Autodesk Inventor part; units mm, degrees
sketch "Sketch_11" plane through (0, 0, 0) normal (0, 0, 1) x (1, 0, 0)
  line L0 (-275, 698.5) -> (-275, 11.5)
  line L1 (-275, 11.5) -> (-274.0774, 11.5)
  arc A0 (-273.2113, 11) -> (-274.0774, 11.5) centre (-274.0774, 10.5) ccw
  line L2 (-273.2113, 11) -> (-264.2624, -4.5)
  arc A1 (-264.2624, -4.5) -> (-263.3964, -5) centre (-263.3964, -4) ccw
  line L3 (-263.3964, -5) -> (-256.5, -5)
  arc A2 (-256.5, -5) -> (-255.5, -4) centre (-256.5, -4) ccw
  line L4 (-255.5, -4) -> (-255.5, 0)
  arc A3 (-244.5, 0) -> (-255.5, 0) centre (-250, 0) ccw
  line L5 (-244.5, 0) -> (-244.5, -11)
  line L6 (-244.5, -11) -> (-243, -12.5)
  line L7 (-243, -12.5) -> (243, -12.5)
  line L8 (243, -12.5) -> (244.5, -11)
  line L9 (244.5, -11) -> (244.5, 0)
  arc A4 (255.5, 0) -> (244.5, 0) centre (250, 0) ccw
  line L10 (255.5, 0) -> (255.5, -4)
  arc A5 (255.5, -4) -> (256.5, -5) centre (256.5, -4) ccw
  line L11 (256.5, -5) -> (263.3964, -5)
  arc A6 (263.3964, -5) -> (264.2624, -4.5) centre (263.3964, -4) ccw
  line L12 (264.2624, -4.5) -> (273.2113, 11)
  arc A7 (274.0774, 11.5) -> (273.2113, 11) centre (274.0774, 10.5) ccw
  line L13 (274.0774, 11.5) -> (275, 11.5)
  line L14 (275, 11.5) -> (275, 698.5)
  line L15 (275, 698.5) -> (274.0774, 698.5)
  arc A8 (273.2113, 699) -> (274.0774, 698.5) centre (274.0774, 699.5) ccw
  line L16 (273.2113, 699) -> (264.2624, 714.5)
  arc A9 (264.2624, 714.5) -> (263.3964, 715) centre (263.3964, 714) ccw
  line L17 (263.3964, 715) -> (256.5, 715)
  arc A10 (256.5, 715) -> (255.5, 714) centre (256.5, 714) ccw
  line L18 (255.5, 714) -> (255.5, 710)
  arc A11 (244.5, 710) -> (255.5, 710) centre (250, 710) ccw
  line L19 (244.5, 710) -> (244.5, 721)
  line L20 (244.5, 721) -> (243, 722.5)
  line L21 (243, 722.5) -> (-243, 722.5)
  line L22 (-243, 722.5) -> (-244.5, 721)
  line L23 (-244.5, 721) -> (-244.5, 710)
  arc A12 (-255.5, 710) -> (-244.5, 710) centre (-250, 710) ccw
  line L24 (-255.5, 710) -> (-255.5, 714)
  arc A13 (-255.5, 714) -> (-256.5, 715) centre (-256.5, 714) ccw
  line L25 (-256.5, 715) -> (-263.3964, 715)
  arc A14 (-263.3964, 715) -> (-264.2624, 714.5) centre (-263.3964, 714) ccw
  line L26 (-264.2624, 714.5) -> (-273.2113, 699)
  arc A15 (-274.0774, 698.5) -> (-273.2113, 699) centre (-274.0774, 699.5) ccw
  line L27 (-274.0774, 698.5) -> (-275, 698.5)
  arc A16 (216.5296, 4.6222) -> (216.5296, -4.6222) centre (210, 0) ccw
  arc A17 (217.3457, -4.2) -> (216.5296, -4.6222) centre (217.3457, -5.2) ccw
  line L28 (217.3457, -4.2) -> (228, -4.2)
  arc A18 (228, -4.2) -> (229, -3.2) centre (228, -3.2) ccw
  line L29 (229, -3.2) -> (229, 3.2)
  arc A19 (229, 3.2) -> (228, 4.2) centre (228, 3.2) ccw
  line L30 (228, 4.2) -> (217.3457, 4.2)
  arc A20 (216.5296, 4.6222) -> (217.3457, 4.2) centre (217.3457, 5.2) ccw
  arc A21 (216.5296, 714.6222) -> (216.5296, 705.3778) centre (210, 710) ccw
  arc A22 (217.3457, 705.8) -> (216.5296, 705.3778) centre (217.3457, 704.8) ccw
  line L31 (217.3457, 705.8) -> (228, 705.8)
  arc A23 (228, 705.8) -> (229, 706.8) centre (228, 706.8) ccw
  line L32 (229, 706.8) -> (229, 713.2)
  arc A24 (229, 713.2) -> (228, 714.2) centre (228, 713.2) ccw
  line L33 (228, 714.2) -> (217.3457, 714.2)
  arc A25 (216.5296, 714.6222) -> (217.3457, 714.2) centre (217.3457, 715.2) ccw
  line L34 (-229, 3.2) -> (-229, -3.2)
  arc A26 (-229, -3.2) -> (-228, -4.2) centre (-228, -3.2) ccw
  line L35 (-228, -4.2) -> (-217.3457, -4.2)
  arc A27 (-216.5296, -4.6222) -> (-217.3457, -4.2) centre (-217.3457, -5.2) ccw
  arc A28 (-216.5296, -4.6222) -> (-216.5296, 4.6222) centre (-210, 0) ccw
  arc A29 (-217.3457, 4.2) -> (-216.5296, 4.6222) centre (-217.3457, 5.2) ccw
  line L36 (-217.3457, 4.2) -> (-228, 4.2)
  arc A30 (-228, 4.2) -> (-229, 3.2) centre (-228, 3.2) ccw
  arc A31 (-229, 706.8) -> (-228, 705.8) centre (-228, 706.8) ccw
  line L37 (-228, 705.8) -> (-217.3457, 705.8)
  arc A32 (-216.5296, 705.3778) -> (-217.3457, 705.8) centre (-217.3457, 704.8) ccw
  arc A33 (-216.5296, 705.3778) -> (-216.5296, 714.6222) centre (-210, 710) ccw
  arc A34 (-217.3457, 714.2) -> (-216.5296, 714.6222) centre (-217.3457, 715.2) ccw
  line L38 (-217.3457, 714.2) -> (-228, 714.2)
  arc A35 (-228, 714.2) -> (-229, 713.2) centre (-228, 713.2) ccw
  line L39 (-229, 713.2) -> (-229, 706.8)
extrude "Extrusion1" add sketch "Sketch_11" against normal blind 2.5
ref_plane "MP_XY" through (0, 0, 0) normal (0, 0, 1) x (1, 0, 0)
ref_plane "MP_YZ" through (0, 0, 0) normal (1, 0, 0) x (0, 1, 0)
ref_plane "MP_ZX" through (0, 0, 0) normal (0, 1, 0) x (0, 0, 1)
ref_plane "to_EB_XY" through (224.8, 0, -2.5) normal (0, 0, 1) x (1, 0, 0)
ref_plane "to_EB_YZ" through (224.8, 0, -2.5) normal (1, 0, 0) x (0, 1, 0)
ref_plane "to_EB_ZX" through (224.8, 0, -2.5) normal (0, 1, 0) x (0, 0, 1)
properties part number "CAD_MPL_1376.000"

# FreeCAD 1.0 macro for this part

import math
import FreeCAD as App
import Part
import Sketcher
Q = App.Units.Quantity

doc = App.newDocument("Part")
params = doc.addObject("Spreadsheet::Sheet", "Params")
for row, (alias, value) in enumerate([
    ("sketch1_radius", "1 mm"),
    ("sketch1_radius2", "8 mm"),
    ("sketch1_radius3", "5.5 mm"),
    ("sketch1_width", "486 mm"),
    ("sketch1_height", "687 mm"),
    ("pad1_length", "2.5 mm"),
], start=1):
    params.set(f"A{row}", alias)
    params.set(f"B{row}", "=" + value)
    params.setAlias(f"B{row}", alias)

body = doc.addObject("PartDesign::Body", "Body")

sketch1 = doc.addObject("Sketcher::SketchObject", "Sketch")
body.addObject(sketch1)
sketch1.AttachmentSupport = (doc.XY_Plane, [""])
sketch1.MapMode = "FlatFace"
sketch1.addGeometry([
    Part.LineSegment(App.Vector(-274.1, 698.5, 0), App.Vector(-275, 698.5, 0)),
    Part.LineSegment(App.Vector(-275, 698.5, 0), App.Vector(-275, 11.5, 0)),
    Part.LineSegment(App.Vector(-275, 11.5, 0), App.Vector(-274.1, 11.5, 0)),
    Part.ArcOfCircle(Part.Circle(App.Vector(-274.1, 10.5, 0), App.Vector(0, 0, 1), 1), math.radians(30), math.radians(90)),
    Part.LineSegment(App.Vector(-273.2, 11, 0), App.Vector(-264.3, -4.5, 0)),
    Part.ArcOfCircle(Part.Circle(App.Vector(-263.4, -4, 0), App.Vector(0, 0, 1), 1), math.radians(-150), math.radians(-90)),
    Part.LineSegment(App.Vector(-263.4, -5, 0), App.Vector(-256.5, -5, 0)),
    Part.ArcOfCircle(Part.Circle(App.Vector(-256.5, -4, 0), App.Vector(0, 0, 1), 1), math.radians(-90), math.radians(0)),
    Part.LineSegment(App.Vector(-255.5, -4, 0), App.Vector(-255.5, 0, 0)),
    Part.ArcOfCircle(Part.Circle(App.Vector(-250, 0, 0), App.Vector(0, 0, 1), 5.5), math.radians(0), math.radians(180)),
    Part.LineSegment(App.Vector(-244.5, 0, 0), App.Vector(-244.5, -11, 0)),
    Part.LineSegment(App.Vector(-244.5, -11, 0), App.Vector(-243, -12.5, 0)),
    Part.LineSegment(App.Vector(-243, -12.5, 0), App.Vector(243, -12.5, 0)),
    Part.LineSegment(App.Vector(243, -12.5, 0), App.Vector(244.5, -11, 0)),
    Part.LineSegment(App.Vector(244.5, -11, 0), App.Vector(244.5, 0, 0)),
    Part.ArcOfCircle(Part.Circle(App.Vector(250, 0, 0), App.Vector(0, 0, 1), 5.5), math.radians(0), math.radians(180)),
    Part.LineSegment(App.Vector(255.5, 0, 0), App.Vector(255.5, -4, 0)),
    Part.ArcOfCircle(Part.Circle(App.Vector(256.5, -4, 0), App.Vector(0, 0, 1), 1), math.radians(180), math.radians(270)),
    Part.LineSegment(App.Vector(256.5, -5, 0), App.Vector(263.4, -5, 0)),
    Part.ArcOfCircle(Part.Circle(App.Vector(263.4, -4, 0), App.Vector(0, 0, 1), 1), math.radians(-90), math.radians(-30)),
    Part.LineSegment(App.Vector(264.3, -4.5, 0), App.Vector(273.2, 11, 0)),
    Part.ArcOfCircle(Part.Circle(App.Vector(274.1, 10.5, 0), App.Vector(0, 0, 1), 1), math.radians(90), math.radians(150)),
    Part.LineSegment(App.Vector(274.1, 11.5, 0), App.Vector(275, 11.5, 0)),
    Part.LineSegment(App.Vector(275, 11.5, 0), App.Vector(275, 698.5, 0)),
    Part.LineSegment(App.Vector(275, 698.5, 0), App.Vector(274.1, 698.5, 0)),
    Part.ArcOfCircle(Part.Circle(App.Vector(274.1, 699.5, 0), App.Vector(0, 0, 1), 1), math.radians(-150), math.radians(-90)),
    Part.LineSegment(App.Vector(273.2, 699, 0), App.Vector(264.3, 714.5, 0)),
    Part.ArcOfCircle(Part.Circle(App.Vector(263.4, 714, 0), App.Vector(0, 0, 1), 1), math.radians(30), math.radians(90)),
    Part.LineSegment(App.Vector(263.4, 715, 0), App.Vector(256.5, 715, 0)),
    Part.ArcOfCircle(Part.Circle(App.Vector(256.5, 714, 0), App.Vector(0, 0, 1), 1), math.radians(90), math.radians(180)),
    Part.LineSegment(App.Vector(255.5, 714, 0), App.Vector(255.5, 710, 0)),
    Part.ArcOfCircle(Part.Circle(App.Vector(250, 710, 0), App.Vector(0, 0, 1), 5.5), math.radians(180), math.radians(360)),
    Part.LineSegment(App.Vector(244.5, 710, 0), App.Vector(244.5, 721, 0)),
    Part.LineSegment(App.Vector(244.5, 721, 0), App.Vector(243, 722.5, 0)),
    Part.LineSegment(App.Vector(243, 722.5, 0), App.Vector(-243, 722.5, 0)),
    Part.LineSegment(App.Vector(-243, 722.5, 0), App.Vector(-244.5, 721, 0)),
    Part.LineSegment(App.Vector(-244.5, 721, 0), App.Vector(-244.5, 710, 0)),
    Part.ArcOfCircle(Part.Circle(App.Vector(-250, 710, 0), App.Vector(0, 0, 1), 5.5), math.radians(180), math.radians(360)),
    Part.LineSegment(App.Vector(-255.5, 710, 0), App.Vector(-255.5, 714, 0)),
    Part.ArcOfCircle(Part.Circle(App.Vector(-256.5, 714, 0), App.Vector(0, 0, 1), 1), math.radians(0), math.radians(90)),
    Part.LineSegment(App.Vector(-256.5, 715, 0), App.Vector(-263.4, 715, 0)),
    Part.ArcOfCircle(Part.Circle(App.Vector(-263.4, 714, 0), App.Vector(0, 0, 1), 1), math.radians(90), math.radians(150)),
    Part.LineSegment(App.Vector(-264.3, 714.5, 0), App.Vector(-273.2, 699, 0)),
    Part.ArcOfCircle(Part.Circle(App.Vector(-274.1, 699.5, 0), App.Vector(0, 0, 1), 1), math.radians(-90), math.radians(-30)),
    Part.LineSegment(App.Vector(-229, -3.2, 0), App.Vector(-229, 3.2, 0)),
    Part.ArcOfCircle(Part.Circle(App.Vector(-228, 3.2, 0), App.Vector(0, 0, 1), 1), math.radians(90), math.radians(180)),
    Part.LineSegment(App.Vector(-228, 4.2, 0), App.Vector(-217.3, 4.2, 0)),
    Part.ArcOfCircle(Part.Circle(App.Vector(-217.3, 5.2, 0), App.Vector(0, 0, 1), 1), math.radians(-90), math.radians(-35)),
    Part.ArcOfCircle(Part.Circle(App.Vector(-210, 0, 0), App.Vector(0, 0, 1), 8), math.radians(-145), math.radians(145)),
    Part.ArcOfCircle(Part.Circle(App.Vector(-217.3, -5.2, 0), App.Vector(0, 0, 1), 1), math.radians(35), math.radians(90)),
    Part.LineSegment(App.Vector(-217.3, -4.2, 0), App.Vector(-228, -4.2, 0)),
    Part.ArcOfCircle(Part.Circle(App.Vector(-228, -3.2, 0), App.Vector(0, 0, 1), 1), math.radians(180), math.radians(270)),
    Part.ArcOfCircle(Part.Circle(App.Vector(210, 0, 0), App.Vector(0, 0, 1), 8), math.radians(35), math.radians(325)),
    Part.ArcOfCircle(Part.Circle(App.Vector(217.3, 5.2, 0), App.Vector(0, 0, 1), 1), math.radians(-145), math.radians(-90)),
    Part.LineSegment(App.Vector(217.3, 4.2, 0), App.Vector(228, 4.2, 0)),
    Part.ArcOfCircle(Part.Circle(App.Vector(228, 3.2, 0), App.Vector(0, 0, 1), 1), math.radians(0), math.radians(90)),
    Part.LineSegment(App.Vector(229, 3.2, 0), App.Vector(229, -3.2, 0)),
    Part.ArcOfCircle(Part.Circle(App.Vector(228, -3.2, 0), App.Vector(0, 0, 1), 1), math.radians(-90), math.radians(0)),
    Part.LineSegment(App.Vector(228, -4.2, 0), App.Vector(217.3, -4.2, 0)),
    Part.ArcOfCircle(Part.Circle(App.Vector(217.3, -5.2, 0), App.Vector(0, 0, 1), 1), math.radians(90), math.radians(145)),
    Part.ArcOfCircle(Part.Circle(App.Vector(-228, 706.8, 0), App.Vector(0, 0, 1), 1), math.radians(180), math.radians(270)),
    Part.LineSegment(App.Vector(-229, 706.8, 0), App.Vector(-229, 713.2, 0)),
    Part.ArcOfCircle(Part.Circle(App.Vector(-228, 713.2, 0), App.Vector(0, 0, 1), 1), math.radians(90), math.radians(180)),
    Part.LineSegment(App.Vector(-228, 714.2, 0), App.Vector(-217.3, 714.2, 0)),
    Part.ArcOfCircle(Part.Circle(App.Vector(-217.3, 715.2, 0), App.Vector(0, 0, 1), 1), math.radians(-90), math.radians(-35)),
    Part.ArcOfCircle(Part.Circle(App.Vector(-210, 710, 0), App.Vector(0, 0, 1), 8), math.radians(-145), math.radians(145)),
    Part.ArcOfCircle(Part.Circle(App.Vector(-217.3, 704.8, 0), App.Vector(0, 0, 1), 1), math.radians(35), math.radians(90)),
    Part.LineSegment(App.Vector(-217.3, 705.8, 0), App.Vector(-228, 705.8, 0)),
    Part.ArcOfCircle(Part.Circle(App.Vector(210, 710, 0), App.Vector(0, 0, 1), 8), math.radians(35), math.radians(325)),
    Part.ArcOfCircle(Part.Circle(App.Vector(217.3, 715.2, 0), App.Vector(0, 0, 1), 1), math.radians(-145), math.radians(-90)),
    Part.LineSegment(App.Vector(217.3, 714.2, 0), App.Vector(228, 714.2, 0)),
    Part.ArcOfCircle(Part.Circle(App.Vector(228, 713.2, 0), App.Vector(0, 0, 1), 1), math.radians(0), math.radians(90)),
    Part.LineSegment(App.Vector(229, 713.2, 0), App.Vector(229, 706.8, 0)),
    Part.ArcOfCircle(Part.Circle(App.Vector(228, 706.8, 0), App.Vector(0, 0, 1), 1), math.radians(-90), math.radians(0)),
    Part.LineSegment(App.Vector(228, 705.8, 0), App.Vector(217.3, 705.8, 0)),
    Part.ArcOfCircle(Part.Circle(App.Vector(217.3, 704.8, 0), App.Vector(0, 0, 1), 1), math.radians(90), math.radians(145)),
], False)
sketch1.addConstraint([
    Sketcher.Constraint("Coincident", 0, 2, 1, 1),
    Sketcher.Constraint("Coincident", 1, 2, 2, 1),
    Sketcher.Constraint("Tangent", 2, 2, 3, 2),
    Sketcher.Constraint("Tangent", 3, 1, 4, 1),
    Sketcher.Constraint("Tangent", 4, 2, 5, 1),
    Sketcher.Constraint("Tangent", 5, 2, 6, 1),
    Sketcher.Constraint("Tangent", 6, 2, 7, 1),
    Sketcher.Constraint("Tangent", 7, 2, 8, 1),
    Sketcher.Constraint("Tangent", 8, 2, 9, 2),
    Sketcher.Constraint("Tangent", 9, 1, 10, 1),
    Sketcher.Constraint("Coincident", 10, 2, 11, 1),
    Sketcher.Constraint("Coincident", 11, 2, 12, 1),
    Sketcher.Constraint("Coincident", 12, 2, 13, 1),
    Sketcher.Constraint("Coincident", 13, 2, 14, 1),
    Sketcher.Constraint("Tangent", 14, 2, 15, 2),
    Sketcher.Constraint("Tangent", 15, 1, 16, 1),
    Sketcher.Constraint("Tangent", 16, 2, 17, 1),
    Sketcher.Constraint("Tangent", 17, 2, 18, 1),
    Sketcher.Constraint("Tangent", 18, 2, 19, 1),
    Sketcher.Constraint("Tangent", 19, 2, 20, 1),
    Sketcher.Constraint("Tangent", 20, 2, 21, 2),
    Sketcher.Constraint("Tangent", 21, 1, 22, 1),
    Sketcher.Constraint("Coincident", 22, 2, 23, 1),
    Sketcher.Constraint("Coincident", 23, 2, 24, 1),
    Sketcher.Constraint("Tangent", 24, 2, 25, 2),
    Sketcher.Constraint("Tangent", 25, 1, 26, 1),
    Sketcher.Constraint("Tangent", 26, 2, 27, 1),
    Sketcher.Constraint("Tangent", 27, 2, 28, 1),
    Sketcher.Constraint("Tangent", 28, 2, 29, 1),
    Sketcher.Constraint("Tangent", 29, 2, 30, 1),
    Sketcher.Constraint("Tangent", 30, 2, 31, 2),
    Sketcher.Constraint("Tangent", 31, 1, 32, 1),
    Sketcher.Constraint("Coincident", 32, 2, 33, 1),
    Sketcher.Constraint("Coincident", 33, 2, 34, 1),
    Sketcher.Constraint("Coincident", 34, 2, 35, 1),
    Sketcher.Constraint("Coincident", 35, 2, 36, 1),
    Sketcher.Constraint("Tangent", 36, 2, 37, 2),
    Sketcher.Constraint("Tangent", 37, 1, 38, 1),
    Sketcher.Constraint("Tangent", 38, 2, 39, 1),
    Sketcher.Constraint("Tangent", 39, 2, 40, 1),
    Sketcher.Constraint("Tangent", 40, 2, 41, 1),
    Sketcher.Constraint("Tangent", 41, 2, 42, 1),
    Sketcher.Constraint("Tangent", 42, 2, 43, 2),
    Sketcher.Constraint("Tangent", 43, 1, 0, 1),
    Sketcher.Constraint("Tangent", 44, 2, 45, 2),
    Sketcher.Constraint("Tangent", 45, 1, 46, 1),
    Sketcher.Constraint("Tangent", 46, 2, 47, 1),
    Sketcher.Constraint("Tangent", 47, 2, 48, 2),
    Sketcher.Constraint("Tangent", 48, 1, 49, 1),
    Sketcher.Constraint("Tangent", 49, 2, 50, 1),
    Sketcher.Constraint("Tangent", 50, 2, 51, 2),
    Sketcher.Constraint("Tangent", 51, 1, 44, 1),
    Sketcher.Constraint("Tangent", 52, 1, 53, 1),
    Sketcher.Constraint("Tangent", 53, 2, 54, 1),
    Sketcher.Constraint("Tangent", 54, 2, 55, 2),
    Sketcher.Constraint("Tangent", 55, 1, 56, 1),
    Sketcher.Constraint("Tangent", 56, 2, 57, 2),
    Sketcher.Constraint("Tangent", 57, 1, 58, 1),
    Sketcher.Constraint("Tangent", 58, 2, 59, 1),
    Sketcher.Constraint("Tangent", 59, 2, 52, 2),
    Sketcher.Constraint("Tangent", 60, 1, 61, 1),
    Sketcher.Constraint("Tangent", 61, 2, 62, 2),
    Sketcher.Constraint("Tangent", 62, 1, 63, 1),
    Sketcher.Constraint("Tangent", 63, 2, 64, 1),
    Sketcher.Constraint("Tangent", 64, 2, 65, 2),
    Sketcher.Constraint("Tangent", 65, 1, 66, 1),
    Sketcher.Constraint("Tangent", 66, 2, 67, 1),
    Sketcher.Constraint("Tangent", 67, 2, 60, 2),
    Sketcher.Constraint("Tangent", 68, 1, 69, 1),
    Sketcher.Constraint("Tangent", 69, 2, 70, 1),
    Sketcher.Constraint("Tangent", 70, 2, 71, 2),
    Sketcher.Constraint("Tangent", 71, 1, 72, 1),
    Sketcher.Constraint("Tangent", 72, 2, 73, 2),
    Sketcher.Constraint("Tangent", 73, 1, 74, 1),
    Sketcher.Constraint("Tangent", 74, 2, 75, 1),
    Sketcher.Constraint("Tangent", 75, 2, 68, 2),
    Sketcher.Constraint("Horizontal", 0),
    Sketcher.Constraint("Vertical", 1),
    Sketcher.Constraint("Horizontal", 2),
    Sketcher.Constraint("Horizontal", 6),
    Sketcher.Constraint("Vertical", 8),
    Sketcher.Constraint("Vertical", 10),
    Sketcher.Constraint("Horizontal", 12),
    Sketcher.Constraint("Vertical", 14),
    Sketcher.Constraint("Vertical", 16),
    Sketcher.Constraint("Horizontal", 18),
    Sketcher.Constraint("Horizontal", 22),
    Sketcher.Constraint("Vertical", 23),
    Sketcher.Constraint("Horizontal", 24),
    Sketcher.Constraint("Horizontal", 28),
    Sketcher.Constraint("Vertical", 30),
    Sketcher.Constraint("Vertical", 32),
    Sketcher.Constraint("Horizontal", 34),
    Sketcher.Constraint("Vertical", 36),
    Sketcher.Constraint("Vertical", 38),
    Sketcher.Constraint("Horizontal", 40),
    Sketcher.Constraint("Vertical", 44),
    Sketcher.Constraint("Horizontal", 46),
    Sketcher.Constraint("Horizontal", 50),
    Sketcher.Constraint("Horizontal", 54),
    Sketcher.Constraint("Vertical", 56),
    Sketcher.Constraint("Horizontal", 58),
    Sketcher.Constraint("Vertical", 61),
    Sketcher.Constraint("Horizontal", 63),
    Sketcher.Constraint("Horizontal", 67),
    Sketcher.Constraint("Horizontal", 70),
    Sketcher.Constraint("Vertical", 72),
    Sketcher.Constraint("Horizontal", 74),
    Sketcher.Constraint("Equal", 3, 5),
    Sketcher.Constraint("Equal", 5, 7),
    Sketcher.Constraint("Equal", 9, 15),
    Sketcher.Constraint("Equal", 7, 17),
    Sketcher.Constraint("Equal", 17, 19),
    Sketcher.Constraint("Equal", 19, 21),
    Sketcher.Constraint("Equal", 21, 25),
    Sketcher.Constraint("Equal", 25, 27),
    Sketcher.Constraint("Equal", 27, 29),
    Sketcher.Constraint("Equal", 15, 31),
    Sketcher.Constraint("Equal", 31, 37),
    Sketcher.Constraint("Equal", 29, 39),
    Sketcher.Constraint("Equal", 39, 41),
    Sketcher.Constraint("Equal", 41, 43),
    Sketcher.Constraint("Equal", 43, 45),
    Sketcher.Constraint("Equal", 45, 47),
    Sketcher.Constraint("Equal", 47, 49),
    Sketcher.Constraint("Equal", 49, 51),
    Sketcher.Constraint("Equal", 48, 52),
    Sketcher.Constraint("Equal", 51, 53),
    Sketcher.Constraint("Equal", 53, 55),
    Sketcher.Constraint("Equal", 55, 57),
    Sketcher.Constraint("Equal", 57, 59),
    Sketcher.Constraint("Equal", 59, 60),
    Sketcher.Constraint("Equal", 60, 62),
    Sketcher.Constraint("Equal", 62, 64),
    Sketcher.Constraint("Equal", 52, 65),
    Sketcher.Constraint("Equal", 64, 66),
    Sketcher.Constraint("Equal", 65, 68),
    Sketcher.Constraint("Equal", 66, 69),
    Sketcher.Constraint("Equal", 69, 71),
    Sketcher.Constraint("Equal", 71, 73),
    Sketcher.Constraint("Equal", 73, 75),
    Sketcher.Constraint("Symmetric", 9, 3, 15, 3, -1, 1),
    Sketcher.Constraint("Symmetric", 48, 3, 52, 3, -1, 1),
    Sketcher.Constraint("Symmetric", 51, 3, 55, 3, -1, 1),
    Sketcher.Constraint("Symmetric", 5, 3, 19, 3, -2),
    Sketcher.Constraint("Symmetric", 3, 3, 21, 3, -2),
    Sketcher.Constraint("Symmetric", 31, 3, 37, 3, -2),
    Sketcher.Constraint("Symmetric", 27, 3, 41, 3, -2),
    Sketcher.Constraint("Symmetric", 25, 3, 43, 3, -2),
    Sketcher.Constraint("Symmetric", 47, 3, 53, 3, -2),
    Sketcher.Constraint("Symmetric", 65, 3, 68, 3, -2),
    Sketcher.Constraint("Symmetric", 62, 3, 71, 3, -2),
    Sketcher.Constraint("PointOnObject", 9, 3, -1),
    Sketcher.Constraint("Perpendicular", 11, 13),
    Sketcher.Constraint("Parallel", 4, 26),
    Sketcher.Constraint("Perpendicular", 13, 33),
    Sketcher.Constraint("Perpendicular", 33, 35),
    Sketcher.Constraint("Horizontal", 51, 3, 57, 3),
    Sketcher.Constraint("Horizontal", 37, 3, 65, 3),
    Sketcher.Constraint("Horizontal", 60, 3, 73, 3),
    Sketcher.Constraint("Horizontal", 10, 2, 13, 2),
    Sketcher.Constraint("Horizontal", 32, 2, 35, 2),
    Sketcher.Constraint("Vertical", 21, 3, 25, 3),
    Sketcher.Constraint("Vertical", 19, 3, 27, 3),
    Sketcher.Constraint("Vertical", 17, 3, 29, 3),
    Sketcher.Constraint("Vertical", 51, 3, 60, 3),
    Sketcher.Constraint("Vertical", 49, 3, 64, 3),
    Sketcher.Constraint("Vertical", 48, 3, 65, 3),
    Sketcher.Constraint("Vertical", 64, 3, 66, 3),
    Sketcher.Constraint("Vertical", 12, 2, 33, 2),
    Sketcher.Constraint("Vertical", 11, 2, 34, 2),
    Sketcher.Constraint("Equal", 2, 22),
    Sketcher.Constraint("Equal", 16, 30),
    Sketcher.Constraint("Equal", 14, 32),
    Sketcher.Constraint("Radius", 3, Q("1 mm")),
    Sketcher.Constraint("Radius", 48, Q("8 mm")),
    Sketcher.Constraint("Radius", 9, Q("5.5 mm")),
    Sketcher.Constraint("DistanceX", 12, 1, 12, 2, Q("486 mm")),
    Sketcher.Constraint("DistanceY", 1, 2, 1, 1, Q("687 mm")),
    Sketcher.Constraint("DistanceY", 8, 1, 8, 2, Q("4 mm")),
    Sketcher.Constraint("DistanceY", 10, 2, 10, 1, Q("11 mm")),
    Sketcher.Constraint("Angle", 4, Q("-60 deg")),
    Sketcher.Constraint("DistanceY", 44, 1, 44, 2, Q("6.4 mm")),
    Sketcher.Constraint("DistanceX", 9, 3, -1, 1, Q("250 mm")),
    Sketcher.Constraint("DistanceY", -1, 1, 27, 3, Q("714 mm")),
    Sketcher.Constraint("DistanceX", 45, 3, -1, 1, Q("228 mm")),
    Sketcher.Constraint("DistanceX", 48, 3, -1, 1, Q("210 mm")),
    Sketcher.Constraint("DistanceX", 0, 2, -1, 1, Q("275 mm")),
    Sketcher.Constraint("DistanceX", 0, 2, 0, 1, Q("0.9226 mm")),
])
sketch1.setExpression("Constraints[174]", "Params.sketch1_radius")
sketch1.setExpression("Constraints[175]", "Params.sketch1_radius2")
sketch1.setExpression("Constraints[176]", "Params.sketch1_radius3")
sketch1.setExpression("Constraints[177]", "Params.sketch1_width")
sketch1.setExpression("Constraints[178]", "Params.sketch1_height")
pad1 = doc.addObject("PartDesign::Pad", "Pad")
body.addObject(pad1)
pad1.Profile = sketch1
pad1.setExpression("Length", "Params.pad1_length")
pad1.Reversed = True

doc.recompute()
